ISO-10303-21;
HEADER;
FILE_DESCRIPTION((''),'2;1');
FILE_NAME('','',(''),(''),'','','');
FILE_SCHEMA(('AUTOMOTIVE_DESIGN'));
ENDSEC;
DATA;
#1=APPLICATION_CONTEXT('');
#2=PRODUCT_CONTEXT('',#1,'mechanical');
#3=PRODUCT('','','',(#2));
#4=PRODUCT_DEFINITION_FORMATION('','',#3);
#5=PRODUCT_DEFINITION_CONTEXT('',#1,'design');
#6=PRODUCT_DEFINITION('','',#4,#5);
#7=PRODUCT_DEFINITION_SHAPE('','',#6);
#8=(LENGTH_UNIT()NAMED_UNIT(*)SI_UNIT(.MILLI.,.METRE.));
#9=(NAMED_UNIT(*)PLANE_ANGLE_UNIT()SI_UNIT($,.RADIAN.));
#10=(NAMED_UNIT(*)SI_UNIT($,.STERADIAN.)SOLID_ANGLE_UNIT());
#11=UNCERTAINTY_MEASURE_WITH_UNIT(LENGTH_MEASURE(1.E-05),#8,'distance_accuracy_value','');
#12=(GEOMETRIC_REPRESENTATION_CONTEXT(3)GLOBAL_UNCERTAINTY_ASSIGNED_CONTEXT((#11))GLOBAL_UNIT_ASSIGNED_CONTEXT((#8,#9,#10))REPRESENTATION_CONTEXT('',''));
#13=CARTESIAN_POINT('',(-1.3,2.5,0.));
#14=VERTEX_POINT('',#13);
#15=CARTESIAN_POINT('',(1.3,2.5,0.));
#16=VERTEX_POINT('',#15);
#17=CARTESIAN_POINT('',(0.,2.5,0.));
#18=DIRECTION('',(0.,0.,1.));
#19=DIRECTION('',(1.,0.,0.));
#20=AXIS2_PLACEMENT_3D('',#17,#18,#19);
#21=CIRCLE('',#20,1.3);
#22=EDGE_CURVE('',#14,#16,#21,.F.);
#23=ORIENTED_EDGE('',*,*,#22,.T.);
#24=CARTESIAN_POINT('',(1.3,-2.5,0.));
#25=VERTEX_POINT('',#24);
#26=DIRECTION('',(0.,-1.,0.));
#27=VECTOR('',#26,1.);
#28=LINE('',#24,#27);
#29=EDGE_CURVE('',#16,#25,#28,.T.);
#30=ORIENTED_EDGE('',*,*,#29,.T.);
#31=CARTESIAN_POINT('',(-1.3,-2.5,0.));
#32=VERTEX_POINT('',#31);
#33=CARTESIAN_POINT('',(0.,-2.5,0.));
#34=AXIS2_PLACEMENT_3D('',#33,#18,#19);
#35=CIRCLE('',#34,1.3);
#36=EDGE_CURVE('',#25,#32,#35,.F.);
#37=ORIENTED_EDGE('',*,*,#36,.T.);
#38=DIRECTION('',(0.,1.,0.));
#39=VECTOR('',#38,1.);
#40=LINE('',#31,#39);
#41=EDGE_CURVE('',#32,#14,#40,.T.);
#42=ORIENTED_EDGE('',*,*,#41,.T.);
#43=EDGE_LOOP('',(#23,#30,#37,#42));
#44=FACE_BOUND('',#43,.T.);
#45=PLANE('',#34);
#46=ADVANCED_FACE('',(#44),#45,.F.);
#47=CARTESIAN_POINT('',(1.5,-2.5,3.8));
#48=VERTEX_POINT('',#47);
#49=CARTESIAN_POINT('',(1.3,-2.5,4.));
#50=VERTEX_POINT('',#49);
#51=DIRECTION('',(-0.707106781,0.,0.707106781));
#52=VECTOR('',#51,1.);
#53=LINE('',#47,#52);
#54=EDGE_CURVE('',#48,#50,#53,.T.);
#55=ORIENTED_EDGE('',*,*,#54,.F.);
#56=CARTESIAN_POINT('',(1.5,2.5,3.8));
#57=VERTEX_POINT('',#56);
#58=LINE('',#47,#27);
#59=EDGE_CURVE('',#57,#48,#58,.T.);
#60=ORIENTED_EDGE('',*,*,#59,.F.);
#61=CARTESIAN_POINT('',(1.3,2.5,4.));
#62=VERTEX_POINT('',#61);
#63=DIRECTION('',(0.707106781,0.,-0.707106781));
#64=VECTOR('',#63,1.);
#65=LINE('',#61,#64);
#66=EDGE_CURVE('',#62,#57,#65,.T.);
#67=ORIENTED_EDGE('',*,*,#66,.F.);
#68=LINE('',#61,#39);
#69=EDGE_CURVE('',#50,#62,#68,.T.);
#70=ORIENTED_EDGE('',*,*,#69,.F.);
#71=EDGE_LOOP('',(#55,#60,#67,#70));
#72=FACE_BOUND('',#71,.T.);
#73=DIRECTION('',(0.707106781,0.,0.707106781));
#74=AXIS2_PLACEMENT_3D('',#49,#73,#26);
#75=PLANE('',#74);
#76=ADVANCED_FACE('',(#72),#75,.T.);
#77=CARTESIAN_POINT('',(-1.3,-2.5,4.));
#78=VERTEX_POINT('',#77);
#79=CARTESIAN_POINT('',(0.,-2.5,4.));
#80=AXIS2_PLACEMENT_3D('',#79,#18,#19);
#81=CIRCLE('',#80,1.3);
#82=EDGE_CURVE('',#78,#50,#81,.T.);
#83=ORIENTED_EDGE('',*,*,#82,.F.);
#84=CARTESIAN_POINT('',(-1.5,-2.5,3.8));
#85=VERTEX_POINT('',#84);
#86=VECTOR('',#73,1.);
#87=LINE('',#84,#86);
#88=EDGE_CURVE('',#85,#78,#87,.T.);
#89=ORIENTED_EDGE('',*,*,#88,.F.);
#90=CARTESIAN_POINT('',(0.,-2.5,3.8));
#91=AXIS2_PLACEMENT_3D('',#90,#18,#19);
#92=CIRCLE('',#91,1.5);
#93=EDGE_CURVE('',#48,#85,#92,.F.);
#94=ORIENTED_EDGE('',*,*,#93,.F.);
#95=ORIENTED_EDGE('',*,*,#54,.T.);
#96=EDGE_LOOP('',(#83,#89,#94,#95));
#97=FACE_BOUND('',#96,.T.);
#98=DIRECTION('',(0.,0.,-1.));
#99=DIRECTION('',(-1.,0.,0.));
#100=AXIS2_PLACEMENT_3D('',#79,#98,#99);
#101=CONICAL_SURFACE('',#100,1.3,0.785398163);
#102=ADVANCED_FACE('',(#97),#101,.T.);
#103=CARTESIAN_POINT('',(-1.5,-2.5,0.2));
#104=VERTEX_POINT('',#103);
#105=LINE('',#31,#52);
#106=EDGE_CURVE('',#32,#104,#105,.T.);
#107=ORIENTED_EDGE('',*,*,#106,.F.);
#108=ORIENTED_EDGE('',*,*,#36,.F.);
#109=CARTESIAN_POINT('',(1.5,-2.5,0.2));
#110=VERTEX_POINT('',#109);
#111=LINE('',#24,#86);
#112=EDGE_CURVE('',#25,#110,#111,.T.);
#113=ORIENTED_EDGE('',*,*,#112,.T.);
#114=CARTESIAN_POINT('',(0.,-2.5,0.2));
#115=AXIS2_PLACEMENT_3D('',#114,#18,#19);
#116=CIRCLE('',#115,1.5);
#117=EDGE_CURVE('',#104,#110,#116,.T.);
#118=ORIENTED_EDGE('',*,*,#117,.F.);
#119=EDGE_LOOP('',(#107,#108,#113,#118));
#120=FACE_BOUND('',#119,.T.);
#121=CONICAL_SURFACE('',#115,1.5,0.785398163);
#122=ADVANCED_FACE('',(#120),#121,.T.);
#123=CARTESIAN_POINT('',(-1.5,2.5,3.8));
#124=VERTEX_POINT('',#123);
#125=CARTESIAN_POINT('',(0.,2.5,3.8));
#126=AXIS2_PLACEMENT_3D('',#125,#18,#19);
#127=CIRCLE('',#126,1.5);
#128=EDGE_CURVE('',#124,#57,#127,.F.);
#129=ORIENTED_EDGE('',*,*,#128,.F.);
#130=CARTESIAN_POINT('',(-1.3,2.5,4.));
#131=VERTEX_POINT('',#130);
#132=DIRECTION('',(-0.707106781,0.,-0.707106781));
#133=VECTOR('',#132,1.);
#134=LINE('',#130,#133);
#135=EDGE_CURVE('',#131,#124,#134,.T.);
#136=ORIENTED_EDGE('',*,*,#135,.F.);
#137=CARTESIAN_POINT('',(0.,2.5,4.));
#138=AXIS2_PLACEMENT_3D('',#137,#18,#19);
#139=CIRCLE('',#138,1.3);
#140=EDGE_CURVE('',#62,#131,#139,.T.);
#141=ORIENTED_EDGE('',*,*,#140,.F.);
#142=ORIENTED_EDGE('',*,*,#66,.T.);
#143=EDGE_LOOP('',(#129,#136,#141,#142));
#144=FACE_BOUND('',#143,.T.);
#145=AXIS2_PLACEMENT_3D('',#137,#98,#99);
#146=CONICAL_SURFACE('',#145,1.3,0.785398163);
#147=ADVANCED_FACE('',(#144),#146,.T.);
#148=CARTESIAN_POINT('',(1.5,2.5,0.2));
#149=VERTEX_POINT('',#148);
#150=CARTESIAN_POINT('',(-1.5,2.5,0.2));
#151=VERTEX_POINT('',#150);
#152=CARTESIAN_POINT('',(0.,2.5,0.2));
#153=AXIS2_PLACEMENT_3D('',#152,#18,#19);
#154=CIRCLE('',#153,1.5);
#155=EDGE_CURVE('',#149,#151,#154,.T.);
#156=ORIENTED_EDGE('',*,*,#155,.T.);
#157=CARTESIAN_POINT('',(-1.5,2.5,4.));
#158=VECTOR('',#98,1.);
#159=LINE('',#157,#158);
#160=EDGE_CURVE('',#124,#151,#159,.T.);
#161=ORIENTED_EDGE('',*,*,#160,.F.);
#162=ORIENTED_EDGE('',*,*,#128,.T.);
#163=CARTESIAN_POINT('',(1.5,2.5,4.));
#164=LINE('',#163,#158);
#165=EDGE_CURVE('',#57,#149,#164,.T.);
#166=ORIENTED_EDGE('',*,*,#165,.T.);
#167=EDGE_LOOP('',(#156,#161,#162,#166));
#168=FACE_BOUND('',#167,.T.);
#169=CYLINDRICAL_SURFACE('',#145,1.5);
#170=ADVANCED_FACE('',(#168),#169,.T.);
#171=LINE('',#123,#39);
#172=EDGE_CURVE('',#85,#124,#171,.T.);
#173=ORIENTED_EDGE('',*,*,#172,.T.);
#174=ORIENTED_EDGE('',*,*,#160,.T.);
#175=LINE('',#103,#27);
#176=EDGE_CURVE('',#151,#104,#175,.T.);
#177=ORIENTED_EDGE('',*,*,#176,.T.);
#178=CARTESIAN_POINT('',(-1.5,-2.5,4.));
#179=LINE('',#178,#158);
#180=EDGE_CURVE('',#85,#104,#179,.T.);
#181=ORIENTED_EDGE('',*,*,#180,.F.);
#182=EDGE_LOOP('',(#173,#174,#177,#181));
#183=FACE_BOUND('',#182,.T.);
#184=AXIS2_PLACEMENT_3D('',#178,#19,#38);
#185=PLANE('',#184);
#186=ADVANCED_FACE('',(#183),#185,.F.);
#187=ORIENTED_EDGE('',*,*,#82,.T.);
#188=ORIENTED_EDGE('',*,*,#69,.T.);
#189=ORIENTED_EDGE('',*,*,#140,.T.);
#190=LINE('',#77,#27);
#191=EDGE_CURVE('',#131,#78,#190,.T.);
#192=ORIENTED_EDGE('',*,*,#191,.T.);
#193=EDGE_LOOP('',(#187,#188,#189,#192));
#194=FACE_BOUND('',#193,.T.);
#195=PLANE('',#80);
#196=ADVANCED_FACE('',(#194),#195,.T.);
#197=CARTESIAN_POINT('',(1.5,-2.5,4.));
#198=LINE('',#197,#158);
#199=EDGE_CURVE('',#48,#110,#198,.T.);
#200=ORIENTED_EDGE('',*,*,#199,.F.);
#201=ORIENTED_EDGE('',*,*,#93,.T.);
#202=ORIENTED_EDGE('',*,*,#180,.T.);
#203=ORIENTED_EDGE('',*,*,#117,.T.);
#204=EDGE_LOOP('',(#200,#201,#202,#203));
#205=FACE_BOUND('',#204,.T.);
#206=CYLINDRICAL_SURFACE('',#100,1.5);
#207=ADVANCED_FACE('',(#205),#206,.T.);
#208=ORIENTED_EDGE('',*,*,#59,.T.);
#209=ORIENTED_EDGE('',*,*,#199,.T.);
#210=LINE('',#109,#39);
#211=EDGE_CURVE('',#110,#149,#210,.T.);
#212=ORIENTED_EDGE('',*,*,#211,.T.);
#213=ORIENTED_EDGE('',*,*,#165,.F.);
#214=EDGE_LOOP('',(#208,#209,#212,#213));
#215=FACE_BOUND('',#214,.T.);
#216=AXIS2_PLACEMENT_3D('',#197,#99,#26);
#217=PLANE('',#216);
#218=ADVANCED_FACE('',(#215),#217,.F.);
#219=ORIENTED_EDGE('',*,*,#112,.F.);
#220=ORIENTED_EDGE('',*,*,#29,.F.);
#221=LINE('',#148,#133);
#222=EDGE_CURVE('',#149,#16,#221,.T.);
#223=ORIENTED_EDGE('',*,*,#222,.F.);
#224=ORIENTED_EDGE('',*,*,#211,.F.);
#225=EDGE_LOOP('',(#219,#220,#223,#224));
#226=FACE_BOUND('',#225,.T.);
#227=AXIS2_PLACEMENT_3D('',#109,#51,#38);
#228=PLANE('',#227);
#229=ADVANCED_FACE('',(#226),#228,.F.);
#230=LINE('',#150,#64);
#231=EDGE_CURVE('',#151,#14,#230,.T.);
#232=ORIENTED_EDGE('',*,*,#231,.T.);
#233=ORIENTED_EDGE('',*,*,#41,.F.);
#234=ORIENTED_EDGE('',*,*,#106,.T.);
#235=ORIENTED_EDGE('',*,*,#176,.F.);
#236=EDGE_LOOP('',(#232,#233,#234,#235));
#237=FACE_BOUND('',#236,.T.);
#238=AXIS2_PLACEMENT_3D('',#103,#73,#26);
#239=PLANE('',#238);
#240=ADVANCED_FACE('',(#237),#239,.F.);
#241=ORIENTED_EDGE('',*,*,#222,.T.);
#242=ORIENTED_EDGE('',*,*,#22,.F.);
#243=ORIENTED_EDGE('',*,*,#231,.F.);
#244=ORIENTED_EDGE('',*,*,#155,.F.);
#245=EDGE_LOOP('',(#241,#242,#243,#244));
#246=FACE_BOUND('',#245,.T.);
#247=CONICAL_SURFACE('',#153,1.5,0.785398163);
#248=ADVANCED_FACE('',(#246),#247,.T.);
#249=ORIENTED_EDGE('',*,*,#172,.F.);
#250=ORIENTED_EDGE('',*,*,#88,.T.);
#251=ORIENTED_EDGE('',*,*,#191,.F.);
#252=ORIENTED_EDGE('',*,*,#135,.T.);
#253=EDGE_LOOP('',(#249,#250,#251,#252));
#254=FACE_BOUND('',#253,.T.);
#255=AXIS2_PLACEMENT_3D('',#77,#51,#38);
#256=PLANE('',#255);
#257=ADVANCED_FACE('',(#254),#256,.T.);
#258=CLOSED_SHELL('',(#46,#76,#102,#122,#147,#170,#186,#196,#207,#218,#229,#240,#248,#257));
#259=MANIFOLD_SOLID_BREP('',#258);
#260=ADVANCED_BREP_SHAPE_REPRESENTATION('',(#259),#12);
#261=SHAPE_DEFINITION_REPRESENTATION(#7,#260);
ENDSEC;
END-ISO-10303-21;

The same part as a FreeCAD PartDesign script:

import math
import FreeCAD as App
import Part
import Sketcher
from FreeCAD import Vector
Q = App.Units.Quantity


def edges_at(feature, points):
    """Names of the edges that pass closest to the given points."""
    edges = feature.Shape.Edges
    near = lambda p: min(range(len(edges)), key=lambda i: edges[i].distToShape(Part.Vertex(*p))[0])
    return sorted({f"Edge{near(p) + 1}" for p in points})

doc = App.newDocument("Part")
params = doc.addObject("Spreadsheet::Sheet", "Params")
for row, (alias, value) in enumerate([
    ("sketch1_radius", "1.5 mm"),
    ("sketch1_height", "5 mm"),
    ("pad1_length", "4 mm"),
    ("chamfer_size", "0.2 mm"),
], start=1):
    params.set(f"A{row}", alias)
    params.set(f"B{row}", "=" + value)
    params.setAlias(f"B{row}", alias)

body = doc.addObject("PartDesign::Body", "Body")

sketch1 = body.newObject("Sketcher::SketchObject", "Sketch")
sketch1.AttachmentSupport = (doc.getObject("XY_Plane"), [""])
sketch1.MapMode = "FlatFace"
sketch1.addGeometry([
    Part.LineSegment(Vector(-1.5, 2.5, 0), Vector(-1.5, -2.5, 0)),
    Part.ArcOfCircle(Part.Circle(Vector(0, -2.5, 0), Vector(0, 0, 1), 1.5), math.radians(180), math.radians(360)),
    Part.LineSegment(Vector(1.5, -2.5, 0), Vector(1.5, 2.5, 0)),
    Part.ArcOfCircle(Part.Circle(Vector(0, 2.5, 0), Vector(0, 0, 1), 1.5), math.radians(0), math.radians(180)),
], False)
sketch1.addConstraint([
    Sketcher.Constraint("Tangent", 0, 2, 1, 1),
    Sketcher.Constraint("Tangent", 1, 2, 2, 1),
    Sketcher.Constraint("Tangent", 2, 2, 3, 1),
    Sketcher.Constraint("Tangent", 3, 2, 0, 1),
    Sketcher.Constraint("Vertical", 0),
    Sketcher.Constraint("Vertical", 2),
    Sketcher.Constraint("Symmetric", 1, 3, 3, 3, -1, 1),
    Sketcher.Constraint("Radius", 1, Q("1.5 mm")),
    Sketcher.Constraint("DistanceY", 0, 2, 0, 1, Q("5 mm")),
])
sketch1.setExpression("Constraints[7]", "Params.sketch1_radius")
sketch1.setExpression("Constraints[8]", "Params.sketch1_height")
pad1 = body.newObject("PartDesign::Pad", "Pad")
pad1.Profile = sketch1
pad1.setExpression("Length", "Params.pad1_length")
doc.recompute()

chamfer = body.newObject("PartDesign::Chamfer", "Chamfer")
chamfer.Base = (pad1, edges_at(pad1, [
    (0, 4, 4),
    (-1.5, 0, 4),
    (0, -4, 4),
    (-1.5, 0, 0),
    (0, 4, 0),
    (1.5, 0, 0),
    (0, -4, 0),
    (1.5, 0, 4),
]))
chamfer.setExpression("Size", "Params.chamfer_size")

doc.recompute()
